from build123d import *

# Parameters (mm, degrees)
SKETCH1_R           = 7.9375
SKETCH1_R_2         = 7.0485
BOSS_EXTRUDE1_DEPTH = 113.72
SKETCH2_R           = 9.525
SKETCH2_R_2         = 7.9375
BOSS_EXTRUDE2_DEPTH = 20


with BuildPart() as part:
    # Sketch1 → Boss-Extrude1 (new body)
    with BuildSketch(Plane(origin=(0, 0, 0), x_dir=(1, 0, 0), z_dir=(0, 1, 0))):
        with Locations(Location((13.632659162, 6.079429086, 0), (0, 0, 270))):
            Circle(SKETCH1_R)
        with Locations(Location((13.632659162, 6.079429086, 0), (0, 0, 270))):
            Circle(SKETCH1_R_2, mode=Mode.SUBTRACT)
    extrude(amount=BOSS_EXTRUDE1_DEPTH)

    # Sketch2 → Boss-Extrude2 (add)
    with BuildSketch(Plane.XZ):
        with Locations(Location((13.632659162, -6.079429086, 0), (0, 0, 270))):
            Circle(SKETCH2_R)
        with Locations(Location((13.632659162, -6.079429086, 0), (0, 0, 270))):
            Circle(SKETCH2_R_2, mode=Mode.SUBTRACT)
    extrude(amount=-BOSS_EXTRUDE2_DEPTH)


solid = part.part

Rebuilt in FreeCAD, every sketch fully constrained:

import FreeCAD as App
import Part
import Sketcher
from FreeCAD import Vector
Q = App.Units.Quantity

doc = App.newDocument("Part")
body = doc.addObject("PartDesign::Body", "Body")

sketch1 = body.newObject("Sketcher::SketchObject", "Sketch")
sketch1.AttachmentSupport = (doc.getObject("XZ_Plane"), [""])
sketch1.MapMode = "FlatFace"
sketch1.addGeometry(Part.Circle(Vector(14, -6, 0), Vector(0, 0, 1), 8), False)
sketch1.addGeometry(Part.Circle(Vector(14, -6, 0), Vector(0, 0, 1), 7), False)
sketch1.addConstraint(Sketcher.Constraint("Coincident", 1, 3, 0, 3))
sketch1.addConstraint(Sketcher.Constraint("Diameter", 0, Q("0.625 in")))
sketch1.addConstraint(Sketcher.Constraint("Diameter", 1, Q("0.555 in")))
sketch1.addConstraint(Sketcher.Constraint("DistanceX", -1, 1, 0, 3, 13.632659))
sketch1.addConstraint(Sketcher.Constraint("DistanceY", 0, 3, -1, 1, 6.079429))
pad1 = body.newObject("PartDesign::Pad", "Pad")
pad1.Profile = sketch1
pad1.Length = 113.72
pad1.Reversed = True

sketch2 = body.newObject("Sketcher::SketchObject", "Sketch001")
sketch2.AttachmentSupport = (doc.getObject("XZ_Plane"), [""])
sketch2.MapMode = "FlatFace"
sketch2.addGeometry(Part.Circle(Vector(14, -6, 0), Vector(0, 0, 1), 10), False)
sketch2.addGeometry(Part.Circle(Vector(14, -6, 0), Vector(0, 0, 1), 8), False)
sketch2.addConstraint(Sketcher.Constraint("Coincident", 1, 3, 0, 3))
sketch2.addConstraint(Sketcher.Constraint("Diameter", 0, Q("0.75 in")))
sketch2.addConstraint(Sketcher.Constraint("Diameter", 1, Q("0.625 in")))
sketch2.addConstraint(Sketcher.Constraint("DistanceX", -1, 1, 0, 3, 13.632659))
sketch2.addConstraint(Sketcher.Constraint("DistanceY", 0, 3, -1, 1, 6.079429))
pad2 = body.newObject("PartDesign::Pad", "Pad001")
pad2.Profile = sketch2
pad2.Length = 20
pad2.Reversed = True

doc.recompute()
